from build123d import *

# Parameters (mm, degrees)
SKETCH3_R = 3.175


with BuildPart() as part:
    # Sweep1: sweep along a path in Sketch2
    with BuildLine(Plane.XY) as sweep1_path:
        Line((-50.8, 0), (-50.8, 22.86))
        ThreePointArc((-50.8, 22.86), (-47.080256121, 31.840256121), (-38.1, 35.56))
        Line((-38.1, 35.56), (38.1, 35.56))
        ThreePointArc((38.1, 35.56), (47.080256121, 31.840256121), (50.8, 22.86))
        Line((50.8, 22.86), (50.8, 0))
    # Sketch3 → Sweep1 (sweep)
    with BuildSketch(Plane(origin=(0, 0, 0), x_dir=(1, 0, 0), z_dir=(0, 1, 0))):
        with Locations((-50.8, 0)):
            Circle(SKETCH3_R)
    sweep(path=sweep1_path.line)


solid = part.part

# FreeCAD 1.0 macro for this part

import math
import FreeCAD as App
import Part
import Sketcher

V = App.Vector
Q = App.Units.Quantity

doc = App.newDocument("Part")
params = doc.addObject("Spreadsheet::Sheet", "Params")
for row, (alias, value) in enumerate([
    ("sketch1_diameter", "0.25 in"),
    ("sketch2_radius", "0.5 in"),
    ("sketch2_width", "3 in"),
    ("sketch2_height", "0.9 in"),
], start=1):
    params.set(f"A{row}", alias)
    params.set(f"B{row}", "=" + value)
    params.setAlias(f"B{row}", alias)

body = doc.addObject("PartDesign::Body", "Body")

sketch1 = doc.addObject("Sketcher::SketchObject", "Sketch")
body.addObject(sketch1)
sketch1.AttachmentSupport = (doc.XZ_Plane, [""])
sketch1.MapMode = "FlatFace"
sketch1.addGeometry(Part.Circle(V(-50.8, 0, 0), V(0, 0, 1), 3.175), False)
sketch1.addConstraint([
    Sketcher.Constraint("PointOnObject", 0, 3, -1),
    Sketcher.Constraint("Diameter", 0, Q("0.25 in")),
    Sketcher.Constraint("DistanceX", 0, 3, -1, 1, Q("2 in")),
])
sketch1.setExpression("Constraints[1]", "Params.sketch1_diameter")

sketch2 = doc.addObject("Sketcher::SketchObject", "Sketch001")
body.addObject(sketch2)
sketch2.AttachmentSupport = (doc.XY_Plane, [""])
sketch2.MapMode = "FlatFace"
sketch2.addGeometry([
    Part.LineSegment(V(-50.8, 0, 0), V(-50.8, 22.86, 0)),
    Part.ArcOfCircle(Part.Circle(V(-38.1, 22.86, 0), V(0, 0, 1), 12.7), math.radians(90), math.radians(180)),
    Part.LineSegment(V(-38.1, 35.56, 0), V(38.1, 35.56, 0)),
    Part.ArcOfCircle(Part.Circle(V(38.1, 22.86, 0), V(0, 0, 1), 12.7), math.radians(0), math.radians(90)),
    Part.LineSegment(V(50.8, 22.86, 0), V(50.8, 0, 0)),
], False)
sketch2.addConstraint([
    Sketcher.Constraint("Tangent", 0, 2, 1, 2),
    Sketcher.Constraint("Tangent", 1, 1, 2, 1),
    Sketcher.Constraint("Tangent", 2, 2, 3, 2),
    Sketcher.Constraint("Tangent", 3, 1, 4, 1),
    Sketcher.Constraint("Vertical", 0),
    Sketcher.Constraint("Horizontal", 2),
    Sketcher.Constraint("Vertical", 4),
    Sketcher.Constraint("Equal", 1, 3),
    Sketcher.Constraint("Symmetric", 0, 1, 4, 2, -1, 1),
    Sketcher.Constraint("PointOnObject", 0, 1, -1),
    Sketcher.Constraint("Radius", 1, Q("0.5 in")),
    Sketcher.Constraint("DistanceX", 2, 1, 2, 2, Q("3 in")),
    Sketcher.Constraint("DistanceY", 0, 1, 0, 2, Q("0.9 in")),
])
sketch2.setExpression("Constraints[10]", "Params.sketch2_radius")
sketch2.setExpression("Constraints[11]", "Params.sketch2_width")
sketch2.setExpression("Constraints[12]", "Params.sketch2_height")
doc.recompute()

additivepipe = doc.addObject("PartDesign::AdditivePipe", "AdditivePipe")
body.addObject(additivepipe)
additivepipe.Profile = sketch1
additivepipe.Spine = (sketch2, ["Edge1", "Edge2", "Edge3", "Edge4", "Edge5"])

doc.recompute()
